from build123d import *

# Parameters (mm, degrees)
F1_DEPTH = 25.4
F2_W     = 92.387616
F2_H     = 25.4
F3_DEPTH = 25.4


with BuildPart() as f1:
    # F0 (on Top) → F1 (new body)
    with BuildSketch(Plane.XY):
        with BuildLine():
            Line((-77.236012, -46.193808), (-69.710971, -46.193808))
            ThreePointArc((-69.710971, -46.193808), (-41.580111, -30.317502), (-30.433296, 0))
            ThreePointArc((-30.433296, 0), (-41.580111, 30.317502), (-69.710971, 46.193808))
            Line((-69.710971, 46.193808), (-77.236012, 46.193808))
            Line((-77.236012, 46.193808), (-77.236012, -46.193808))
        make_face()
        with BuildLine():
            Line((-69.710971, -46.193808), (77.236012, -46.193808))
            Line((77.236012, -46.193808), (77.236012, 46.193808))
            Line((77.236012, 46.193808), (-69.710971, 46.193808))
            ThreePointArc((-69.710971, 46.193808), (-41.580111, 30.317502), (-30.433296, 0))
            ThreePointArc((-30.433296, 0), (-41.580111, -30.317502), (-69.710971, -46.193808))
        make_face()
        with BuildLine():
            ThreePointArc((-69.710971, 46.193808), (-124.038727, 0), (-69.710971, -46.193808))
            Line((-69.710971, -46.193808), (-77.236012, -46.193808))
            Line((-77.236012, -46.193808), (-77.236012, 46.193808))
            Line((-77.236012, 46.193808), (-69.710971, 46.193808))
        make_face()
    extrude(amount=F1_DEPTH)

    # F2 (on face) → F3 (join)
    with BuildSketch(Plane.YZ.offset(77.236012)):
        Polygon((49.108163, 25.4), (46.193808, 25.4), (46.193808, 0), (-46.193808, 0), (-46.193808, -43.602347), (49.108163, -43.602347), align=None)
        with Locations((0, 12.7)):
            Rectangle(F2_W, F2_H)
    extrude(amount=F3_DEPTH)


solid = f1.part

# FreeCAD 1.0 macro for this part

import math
import FreeCAD as App
import Part
import Sketcher

V = App.Vector
Q = App.Units.Quantity


def add_polygon(sketch, points):
    """Adds a closed chain of lines whose ends are joined by coincident constraints."""
    first, n = sketch.GeometryCount, len(points)
    for a, b in zip(points, points[1:] + points[:1]):
        sketch.addGeometry(Part.LineSegment(App.Vector(*a, 0), App.Vector(*b, 0)), False)
    for i in range(n):
        sketch.addConstraint(Sketcher.Constraint("Coincident", first + i, 2, first + (i + 1) % n, 1))

doc = App.newDocument("Part")
body = doc.addObject("PartDesign::Body", "Body")

# Sketch on XY plane
sketch1 = body.newObject("Sketcher::SketchObject", "Sketch")
sketch1.AttachmentSupport = (doc.getObject("XY_Plane"), [""])
sketch1.MapMode = "FlatFace"
sketch1.addGeometry(Part.LineSegment(V(77.236012, -46.193808, 0), V(77.236012, 46.193808, 0)), False)
sketch1.addGeometry(Part.LineSegment(V(77.236012, 46.193808, 0), V(-69.710971, 46.193808, 0)), False)
sketch1.addGeometry(Part.ArcOfCircle(Part.Circle(V(-77.236012, 0, 0), V(0, 0, 1), 46.802715), math.radians(80.747702), math.radians(279.252298)), False)
sketch1.addGeometry(Part.LineSegment(V(-69.710971, -46.193808, 0), V(77.236012, -46.193808, 0)), False)
sketch1.addConstraint(Sketcher.Constraint("Coincident", 0, 2, 1, 1))
sketch1.addConstraint(Sketcher.Constraint("Coincident", 1, 2, 2, 1))
sketch1.addConstraint(Sketcher.Constraint("Coincident", 2, 2, 3, 1))
sketch1.addConstraint(Sketcher.Constraint("Coincident", 3, 2, 0, 1))
sketch1.addConstraint(Sketcher.Constraint("Vertical", 0))
sketch1.addConstraint(Sketcher.Constraint("Horizontal", 1))
sketch1.addConstraint(Sketcher.Constraint("Horizontal", 3))
sketch1.addConstraint(Sketcher.Constraint("Symmetric", 1, 2, 2, 2, -1))
sketch1.addConstraint(Sketcher.Constraint("Radius", 2, Q("46.802715 mm")))
sketch1.addConstraint(Sketcher.Constraint("DistanceX", 1, 2, 1, 1, Q("146.946983 mm")))
sketch1.addConstraint(Sketcher.Constraint("DistanceY", 0, 1, 0, 2, Q("92.387616 mm")))
sketch1.addConstraint(Sketcher.Constraint("DistanceX", 2, 3, -1, 1, Q("77.236012 mm")))
pad1 = body.newObject("PartDesign::Pad", "Pad")
pad1.Profile = sketch1
pad1.Length = Q("1 in")

# Sketch on YZ plane
sketch2 = body.newObject("Sketcher::SketchObject", "Sketch001")
sketch2.AttachmentSupport = (doc.getObject("YZ_Plane"), [""])
sketch2.MapMode = "FlatFace"
sketch2.AttachmentOffset = App.Placement(V(0, 0, 77.236012), App.Rotation())
add_polygon(sketch2, [(49.108163, 25.4), (-46.193808, 25.4), (-46.193808, -43.602347), (49.108163, -43.602347)])  # lines 0-3
sketch2.addConstraint(Sketcher.Constraint("Horizontal", 0))
sketch2.addConstraint(Sketcher.Constraint("Vertical", 1))
sketch2.addConstraint(Sketcher.Constraint("Horizontal", 2))
sketch2.addConstraint(Sketcher.Constraint("Vertical", 3))
sketch2.addConstraint(Sketcher.Constraint("DistanceY", -1, 1, 0, 2, Q("1 in")))
sketch2.addConstraint(Sketcher.Constraint("DistanceX", 0, 2, 0, 1, Q("95.301971 mm")))
sketch2.addConstraint(Sketcher.Constraint("DistanceY", 1, 2, 1, 1, Q("69.002347 mm")))
sketch2.addConstraint(Sketcher.Constraint("DistanceX", 0, 2, -1, 1, Q("46.193808 mm")))
pad2 = body.newObject("PartDesign::Pad", "Pad001")
pad2.Profile = sketch2
pad2.Length = Q("1 in")

doc.recompute()
